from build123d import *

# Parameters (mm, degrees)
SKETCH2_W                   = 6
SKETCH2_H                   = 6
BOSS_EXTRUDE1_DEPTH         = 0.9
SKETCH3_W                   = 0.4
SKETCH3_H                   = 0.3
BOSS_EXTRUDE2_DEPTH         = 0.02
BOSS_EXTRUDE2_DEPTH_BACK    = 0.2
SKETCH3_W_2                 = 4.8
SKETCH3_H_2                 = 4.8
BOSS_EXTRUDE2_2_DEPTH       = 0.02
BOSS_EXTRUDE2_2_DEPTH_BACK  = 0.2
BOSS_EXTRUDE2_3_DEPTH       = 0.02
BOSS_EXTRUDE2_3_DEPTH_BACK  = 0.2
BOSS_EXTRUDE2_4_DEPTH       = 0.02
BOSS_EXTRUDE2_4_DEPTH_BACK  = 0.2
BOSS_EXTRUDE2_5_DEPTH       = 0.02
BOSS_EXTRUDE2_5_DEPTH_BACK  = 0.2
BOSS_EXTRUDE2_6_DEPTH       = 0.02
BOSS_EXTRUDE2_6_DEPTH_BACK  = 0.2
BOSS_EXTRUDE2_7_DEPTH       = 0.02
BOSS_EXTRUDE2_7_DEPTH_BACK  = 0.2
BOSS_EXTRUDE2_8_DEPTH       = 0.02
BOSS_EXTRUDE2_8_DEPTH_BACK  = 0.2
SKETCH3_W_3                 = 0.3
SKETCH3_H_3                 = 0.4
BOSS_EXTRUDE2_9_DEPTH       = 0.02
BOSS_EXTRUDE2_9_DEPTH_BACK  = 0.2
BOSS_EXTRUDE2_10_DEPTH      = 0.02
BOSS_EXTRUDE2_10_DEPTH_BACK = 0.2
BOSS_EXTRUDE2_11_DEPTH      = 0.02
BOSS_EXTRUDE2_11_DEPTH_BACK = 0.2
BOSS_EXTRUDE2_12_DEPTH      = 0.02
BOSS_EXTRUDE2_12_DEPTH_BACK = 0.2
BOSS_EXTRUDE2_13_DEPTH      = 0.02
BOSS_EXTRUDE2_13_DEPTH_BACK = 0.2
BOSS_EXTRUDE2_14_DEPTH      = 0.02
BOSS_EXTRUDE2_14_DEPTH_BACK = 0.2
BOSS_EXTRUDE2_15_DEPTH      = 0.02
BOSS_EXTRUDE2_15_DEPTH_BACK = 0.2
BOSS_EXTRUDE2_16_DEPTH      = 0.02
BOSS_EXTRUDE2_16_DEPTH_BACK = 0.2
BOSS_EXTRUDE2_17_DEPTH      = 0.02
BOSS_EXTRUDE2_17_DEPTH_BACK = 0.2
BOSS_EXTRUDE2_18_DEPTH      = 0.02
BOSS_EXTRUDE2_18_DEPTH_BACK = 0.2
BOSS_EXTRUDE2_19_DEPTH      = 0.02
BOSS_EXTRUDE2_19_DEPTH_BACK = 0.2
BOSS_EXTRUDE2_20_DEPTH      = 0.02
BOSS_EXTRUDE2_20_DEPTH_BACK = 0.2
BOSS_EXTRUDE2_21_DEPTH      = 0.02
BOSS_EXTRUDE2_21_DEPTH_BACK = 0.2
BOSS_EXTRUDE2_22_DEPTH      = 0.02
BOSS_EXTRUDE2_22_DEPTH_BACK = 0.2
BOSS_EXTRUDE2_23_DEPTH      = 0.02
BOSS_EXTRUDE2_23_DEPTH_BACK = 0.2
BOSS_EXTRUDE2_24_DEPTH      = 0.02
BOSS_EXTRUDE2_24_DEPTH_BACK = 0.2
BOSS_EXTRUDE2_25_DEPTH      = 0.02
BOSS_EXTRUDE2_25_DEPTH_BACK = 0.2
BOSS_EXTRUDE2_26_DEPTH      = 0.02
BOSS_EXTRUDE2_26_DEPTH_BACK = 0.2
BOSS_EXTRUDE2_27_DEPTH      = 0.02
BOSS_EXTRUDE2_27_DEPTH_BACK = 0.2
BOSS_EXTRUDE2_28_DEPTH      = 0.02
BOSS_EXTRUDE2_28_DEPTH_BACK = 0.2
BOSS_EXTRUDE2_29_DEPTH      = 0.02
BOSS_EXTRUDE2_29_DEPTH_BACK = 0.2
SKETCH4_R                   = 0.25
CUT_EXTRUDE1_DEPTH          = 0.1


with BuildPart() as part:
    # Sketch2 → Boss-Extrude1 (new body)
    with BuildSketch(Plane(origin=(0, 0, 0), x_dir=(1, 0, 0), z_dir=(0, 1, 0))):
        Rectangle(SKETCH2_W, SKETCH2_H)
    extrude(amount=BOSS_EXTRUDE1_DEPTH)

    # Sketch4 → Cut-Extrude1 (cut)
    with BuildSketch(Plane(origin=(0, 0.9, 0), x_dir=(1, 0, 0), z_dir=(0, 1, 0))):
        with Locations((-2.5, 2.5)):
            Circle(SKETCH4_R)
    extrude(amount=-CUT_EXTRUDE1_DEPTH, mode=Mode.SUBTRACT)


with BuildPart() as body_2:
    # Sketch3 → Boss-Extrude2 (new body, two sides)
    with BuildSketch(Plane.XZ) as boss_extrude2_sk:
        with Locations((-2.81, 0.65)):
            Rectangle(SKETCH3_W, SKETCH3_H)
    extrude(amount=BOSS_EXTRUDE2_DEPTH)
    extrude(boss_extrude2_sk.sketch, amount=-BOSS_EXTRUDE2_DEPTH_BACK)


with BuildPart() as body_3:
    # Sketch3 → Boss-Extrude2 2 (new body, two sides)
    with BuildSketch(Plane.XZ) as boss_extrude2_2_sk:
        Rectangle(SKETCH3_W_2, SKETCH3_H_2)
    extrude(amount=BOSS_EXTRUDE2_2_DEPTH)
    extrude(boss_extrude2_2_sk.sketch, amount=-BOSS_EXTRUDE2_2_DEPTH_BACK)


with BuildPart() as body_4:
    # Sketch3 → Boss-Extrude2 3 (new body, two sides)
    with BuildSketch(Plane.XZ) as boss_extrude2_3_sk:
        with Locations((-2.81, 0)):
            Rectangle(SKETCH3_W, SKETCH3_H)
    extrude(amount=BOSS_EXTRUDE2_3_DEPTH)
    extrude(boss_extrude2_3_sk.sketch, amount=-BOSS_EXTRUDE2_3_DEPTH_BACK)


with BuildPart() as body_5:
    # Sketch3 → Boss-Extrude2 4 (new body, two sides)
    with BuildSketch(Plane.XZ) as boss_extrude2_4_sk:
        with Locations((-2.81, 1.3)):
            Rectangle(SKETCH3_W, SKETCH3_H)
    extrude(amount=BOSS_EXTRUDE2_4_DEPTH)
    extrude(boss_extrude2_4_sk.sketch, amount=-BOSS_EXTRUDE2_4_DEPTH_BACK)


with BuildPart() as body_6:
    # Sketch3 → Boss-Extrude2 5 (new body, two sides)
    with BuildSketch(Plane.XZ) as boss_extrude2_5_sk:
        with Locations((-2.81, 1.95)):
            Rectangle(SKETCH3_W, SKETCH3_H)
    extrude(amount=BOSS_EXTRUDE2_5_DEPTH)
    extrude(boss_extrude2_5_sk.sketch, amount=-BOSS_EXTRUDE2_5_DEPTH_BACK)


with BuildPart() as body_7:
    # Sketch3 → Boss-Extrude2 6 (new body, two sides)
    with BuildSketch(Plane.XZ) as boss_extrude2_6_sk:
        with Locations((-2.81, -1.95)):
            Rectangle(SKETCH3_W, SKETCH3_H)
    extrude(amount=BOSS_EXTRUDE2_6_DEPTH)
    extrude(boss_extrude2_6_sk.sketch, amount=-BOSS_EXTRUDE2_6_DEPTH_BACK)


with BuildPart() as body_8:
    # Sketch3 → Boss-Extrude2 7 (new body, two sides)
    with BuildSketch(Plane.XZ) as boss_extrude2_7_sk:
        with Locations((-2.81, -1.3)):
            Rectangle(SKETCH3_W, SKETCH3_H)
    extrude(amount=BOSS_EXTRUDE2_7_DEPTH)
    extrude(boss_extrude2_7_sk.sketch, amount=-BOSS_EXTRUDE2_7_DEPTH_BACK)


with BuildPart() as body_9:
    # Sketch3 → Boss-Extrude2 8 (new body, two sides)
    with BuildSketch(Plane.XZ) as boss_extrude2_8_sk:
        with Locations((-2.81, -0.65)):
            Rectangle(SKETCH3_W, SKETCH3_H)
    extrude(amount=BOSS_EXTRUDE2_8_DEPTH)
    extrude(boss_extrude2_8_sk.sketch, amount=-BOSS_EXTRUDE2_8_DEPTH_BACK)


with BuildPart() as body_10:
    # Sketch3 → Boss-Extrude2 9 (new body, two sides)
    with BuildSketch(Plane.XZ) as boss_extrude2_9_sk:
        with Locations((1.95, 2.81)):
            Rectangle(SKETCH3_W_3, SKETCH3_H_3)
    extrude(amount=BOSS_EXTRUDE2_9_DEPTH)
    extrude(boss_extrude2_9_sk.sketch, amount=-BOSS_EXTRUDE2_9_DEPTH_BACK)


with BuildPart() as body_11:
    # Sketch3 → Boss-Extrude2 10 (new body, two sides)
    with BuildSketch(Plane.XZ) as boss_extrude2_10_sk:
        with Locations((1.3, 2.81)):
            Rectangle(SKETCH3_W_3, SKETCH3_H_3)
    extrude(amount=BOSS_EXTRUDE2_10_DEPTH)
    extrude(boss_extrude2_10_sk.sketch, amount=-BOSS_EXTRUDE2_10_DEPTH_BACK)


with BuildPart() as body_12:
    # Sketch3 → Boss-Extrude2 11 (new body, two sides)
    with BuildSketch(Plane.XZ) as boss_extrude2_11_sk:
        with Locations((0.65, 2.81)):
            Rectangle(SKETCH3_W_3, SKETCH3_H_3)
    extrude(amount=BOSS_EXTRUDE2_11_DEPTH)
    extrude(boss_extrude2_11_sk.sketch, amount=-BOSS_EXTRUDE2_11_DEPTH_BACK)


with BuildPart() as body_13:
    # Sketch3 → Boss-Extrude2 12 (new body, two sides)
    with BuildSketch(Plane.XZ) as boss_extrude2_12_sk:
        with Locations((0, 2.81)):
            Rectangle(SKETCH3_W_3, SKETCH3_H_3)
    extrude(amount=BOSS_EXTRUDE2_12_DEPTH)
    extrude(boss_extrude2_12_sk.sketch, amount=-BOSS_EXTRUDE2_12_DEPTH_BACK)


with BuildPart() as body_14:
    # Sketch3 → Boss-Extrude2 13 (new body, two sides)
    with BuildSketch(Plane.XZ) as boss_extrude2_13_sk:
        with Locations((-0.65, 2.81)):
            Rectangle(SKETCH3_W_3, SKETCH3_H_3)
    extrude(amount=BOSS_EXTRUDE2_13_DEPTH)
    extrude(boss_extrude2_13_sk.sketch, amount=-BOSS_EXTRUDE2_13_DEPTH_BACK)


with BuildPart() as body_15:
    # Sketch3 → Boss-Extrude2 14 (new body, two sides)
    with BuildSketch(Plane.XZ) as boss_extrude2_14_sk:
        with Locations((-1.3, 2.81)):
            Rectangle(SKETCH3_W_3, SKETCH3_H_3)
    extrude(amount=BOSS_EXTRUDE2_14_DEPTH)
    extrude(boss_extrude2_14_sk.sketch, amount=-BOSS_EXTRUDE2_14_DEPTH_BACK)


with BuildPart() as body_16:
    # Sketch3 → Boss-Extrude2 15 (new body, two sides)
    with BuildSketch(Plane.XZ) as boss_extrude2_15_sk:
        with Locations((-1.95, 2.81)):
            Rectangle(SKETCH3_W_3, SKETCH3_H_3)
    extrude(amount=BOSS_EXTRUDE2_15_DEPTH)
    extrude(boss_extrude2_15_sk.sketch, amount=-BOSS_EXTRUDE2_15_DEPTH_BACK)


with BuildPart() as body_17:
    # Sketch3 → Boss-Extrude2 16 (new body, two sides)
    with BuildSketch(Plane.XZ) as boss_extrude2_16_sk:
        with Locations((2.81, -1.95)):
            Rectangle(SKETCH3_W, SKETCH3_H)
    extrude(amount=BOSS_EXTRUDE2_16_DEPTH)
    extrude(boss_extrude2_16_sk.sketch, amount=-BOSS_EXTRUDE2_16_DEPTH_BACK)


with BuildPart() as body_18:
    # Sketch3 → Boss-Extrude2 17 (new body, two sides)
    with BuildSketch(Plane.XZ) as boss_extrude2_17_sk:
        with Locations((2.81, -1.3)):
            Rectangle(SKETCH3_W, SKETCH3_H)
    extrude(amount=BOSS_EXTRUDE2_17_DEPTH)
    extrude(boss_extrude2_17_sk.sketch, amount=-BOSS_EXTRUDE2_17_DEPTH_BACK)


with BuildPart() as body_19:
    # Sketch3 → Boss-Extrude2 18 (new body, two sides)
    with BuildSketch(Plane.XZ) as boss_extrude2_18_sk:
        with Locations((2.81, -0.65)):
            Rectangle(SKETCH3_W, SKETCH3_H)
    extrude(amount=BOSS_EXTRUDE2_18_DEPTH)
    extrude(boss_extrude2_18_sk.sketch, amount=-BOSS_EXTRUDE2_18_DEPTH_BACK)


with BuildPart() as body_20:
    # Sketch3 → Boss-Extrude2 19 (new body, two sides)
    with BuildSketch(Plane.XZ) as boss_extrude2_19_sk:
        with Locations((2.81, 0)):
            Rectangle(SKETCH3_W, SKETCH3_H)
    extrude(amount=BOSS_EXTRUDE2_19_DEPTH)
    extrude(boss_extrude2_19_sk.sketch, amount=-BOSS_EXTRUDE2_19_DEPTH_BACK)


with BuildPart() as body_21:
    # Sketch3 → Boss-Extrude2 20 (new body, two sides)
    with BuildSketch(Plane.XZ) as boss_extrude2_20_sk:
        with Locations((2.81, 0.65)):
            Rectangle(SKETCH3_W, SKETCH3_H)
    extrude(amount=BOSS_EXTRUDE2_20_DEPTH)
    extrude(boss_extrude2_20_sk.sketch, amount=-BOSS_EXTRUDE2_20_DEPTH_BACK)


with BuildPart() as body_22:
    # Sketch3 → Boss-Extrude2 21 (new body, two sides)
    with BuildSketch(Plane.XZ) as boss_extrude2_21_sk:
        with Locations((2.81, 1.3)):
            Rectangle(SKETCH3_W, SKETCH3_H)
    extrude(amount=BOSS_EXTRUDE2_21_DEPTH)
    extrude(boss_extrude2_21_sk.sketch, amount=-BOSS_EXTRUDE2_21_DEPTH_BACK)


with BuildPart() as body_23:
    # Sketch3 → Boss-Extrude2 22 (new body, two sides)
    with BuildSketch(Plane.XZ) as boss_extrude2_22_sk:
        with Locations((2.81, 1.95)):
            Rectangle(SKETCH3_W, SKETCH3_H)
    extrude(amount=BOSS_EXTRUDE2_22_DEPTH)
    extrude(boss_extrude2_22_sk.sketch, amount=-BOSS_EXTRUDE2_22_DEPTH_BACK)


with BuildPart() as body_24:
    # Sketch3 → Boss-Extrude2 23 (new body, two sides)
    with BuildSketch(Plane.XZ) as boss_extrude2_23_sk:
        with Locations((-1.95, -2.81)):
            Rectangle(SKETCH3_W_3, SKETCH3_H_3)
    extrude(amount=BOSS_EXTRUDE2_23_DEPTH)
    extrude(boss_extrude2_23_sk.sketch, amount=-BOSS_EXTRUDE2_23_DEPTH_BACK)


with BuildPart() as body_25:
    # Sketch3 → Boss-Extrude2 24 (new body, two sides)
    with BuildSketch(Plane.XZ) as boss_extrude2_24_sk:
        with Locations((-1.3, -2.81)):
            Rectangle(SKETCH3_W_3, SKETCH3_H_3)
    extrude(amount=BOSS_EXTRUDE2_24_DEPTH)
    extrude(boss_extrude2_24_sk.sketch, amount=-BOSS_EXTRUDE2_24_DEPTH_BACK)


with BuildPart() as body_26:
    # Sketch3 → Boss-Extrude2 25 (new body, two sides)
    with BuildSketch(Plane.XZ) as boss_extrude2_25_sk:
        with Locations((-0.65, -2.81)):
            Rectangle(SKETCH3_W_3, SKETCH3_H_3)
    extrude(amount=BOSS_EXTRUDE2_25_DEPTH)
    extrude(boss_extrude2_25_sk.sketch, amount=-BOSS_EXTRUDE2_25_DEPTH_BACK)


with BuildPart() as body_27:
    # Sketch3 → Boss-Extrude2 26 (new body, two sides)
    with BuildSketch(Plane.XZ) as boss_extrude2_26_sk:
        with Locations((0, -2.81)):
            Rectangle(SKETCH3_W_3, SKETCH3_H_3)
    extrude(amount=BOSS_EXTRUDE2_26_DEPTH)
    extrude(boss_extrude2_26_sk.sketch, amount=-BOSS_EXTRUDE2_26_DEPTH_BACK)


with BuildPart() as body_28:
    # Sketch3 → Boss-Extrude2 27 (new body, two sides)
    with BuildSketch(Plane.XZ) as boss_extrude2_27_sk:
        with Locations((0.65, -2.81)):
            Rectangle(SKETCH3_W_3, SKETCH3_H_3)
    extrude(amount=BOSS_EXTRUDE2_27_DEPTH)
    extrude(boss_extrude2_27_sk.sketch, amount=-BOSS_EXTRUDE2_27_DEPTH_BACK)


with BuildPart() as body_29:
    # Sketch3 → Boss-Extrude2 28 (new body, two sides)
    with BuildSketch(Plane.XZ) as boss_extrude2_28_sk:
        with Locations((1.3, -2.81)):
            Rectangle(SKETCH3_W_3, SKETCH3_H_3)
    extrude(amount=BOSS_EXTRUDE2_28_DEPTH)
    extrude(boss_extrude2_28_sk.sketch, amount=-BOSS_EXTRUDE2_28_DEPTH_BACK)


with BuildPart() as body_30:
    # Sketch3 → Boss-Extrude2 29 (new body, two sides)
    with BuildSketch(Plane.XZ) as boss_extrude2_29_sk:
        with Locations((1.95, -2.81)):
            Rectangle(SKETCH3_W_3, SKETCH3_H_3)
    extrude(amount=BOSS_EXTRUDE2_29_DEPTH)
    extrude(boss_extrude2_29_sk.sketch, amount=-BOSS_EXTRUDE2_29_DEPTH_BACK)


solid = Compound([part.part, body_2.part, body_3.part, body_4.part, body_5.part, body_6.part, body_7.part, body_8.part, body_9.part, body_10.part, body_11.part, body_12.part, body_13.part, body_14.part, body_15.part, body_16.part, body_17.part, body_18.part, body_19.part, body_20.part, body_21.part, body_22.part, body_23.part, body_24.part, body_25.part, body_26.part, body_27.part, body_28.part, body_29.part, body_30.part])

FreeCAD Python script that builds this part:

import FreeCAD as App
import Part
import Sketcher

V = App.Vector
Q = App.Units.Quantity


def add_polygon(sketch, points):
    """Adds a closed chain of lines whose ends are joined by coincident constraints."""
    first, n = sketch.GeometryCount, len(points)
    for a, b in zip(points, points[1:] + points[:1]):
        sketch.addGeometry(Part.LineSegment(App.Vector(*a, 0), App.Vector(*b, 0)), False)
    for i in range(n):
        sketch.addConstraint(Sketcher.Constraint("Coincident", first + i, 2, first + (i + 1) % n, 1))

doc = App.newDocument("Part")
body = doc.addObject("PartDesign::Body", "Body")

# Sketch on XZ plane
sketch1 = body.newObject("Sketcher::SketchObject", "Sketch")
sketch1.AttachmentSupport = (doc.getObject("XZ_Plane"), [""])
sketch1.MapMode = "FlatFace"
add_polygon(sketch1, [(-3, -3), (-3, 3), (3, 3), (3, -3)])  # lines 0-3
sketch1.addConstraint(Sketcher.Constraint("Vertical", 0))
sketch1.addConstraint(Sketcher.Constraint("Horizontal", 1))
sketch1.addConstraint(Sketcher.Constraint("Vertical", 2))
sketch1.addConstraint(Sketcher.Constraint("Horizontal", 3))
sketch1.addConstraint(Sketcher.Constraint("Symmetric", 0, 2, 2, 2, -1, 1))
sketch1.addConstraint(Sketcher.Constraint("Equal", 3, 0))
sketch1.addConstraint(Sketcher.Constraint("DistanceX", 1, 1, 1, 2, Q("6 mm")))
pad1 = body.newObject("PartDesign::Pad", "Pad")
pad1.Profile = sketch1
pad1.Length = 0.9
pad1.Reversed = True

# Sketch on XZ plane
sketch2 = body.newObject("Sketcher::SketchObject", "Sketch001")
sketch2.AttachmentSupport = (doc.getObject("XZ_Plane"), [""])
sketch2.MapMode = "FlatFace"
sketch2.AttachmentOffset = App.Placement(V(0, 0, -0.9), App.Rotation())
sketch2.addGeometry(Part.Circle(V(-2.5, -2.5, 0), V(0, 0, 1), 0.25), False)
sketch2.addConstraint(Sketcher.Constraint("Diameter", 0, Q("0.5 mm")))
sketch2.addConstraint(Sketcher.Constraint("DistanceX", 0, 3, -1, 1, Q("2.5 mm")))
sketch2.addConstraint(Sketcher.Constraint("DistanceY", 0, 3, -1, 1, Q("2.5 mm")))
pocket1 = body.newObject("PartDesign::Pocket", "Pocket")
pocket1.Profile = sketch2
pocket1.Length = 0.1
pocket1.Reversed = True
body2 = doc.addObject("PartDesign::Body", "Body001")

# Sketch on XZ plane
sketch3 = body2.newObject("Sketcher::SketchObject", "Sketch002")
sketch3.AttachmentSupport = (doc.getObject("XZ_Plane001"), [""])
sketch3.MapMode = "FlatFace"
add_polygon(sketch3, [(-3.01, 0.8), (-3.01, 0.5), (-2.61, 0.5), (-2.61, 0.8)])  # lines 0-3
sketch3.addConstraint(Sketcher.Constraint("Vertical", 0))
sketch3.addConstraint(Sketcher.Constraint("Horizontal", 1))
sketch3.addConstraint(Sketcher.Constraint("Vertical", 2))
sketch3.addConstraint(Sketcher.Constraint("Horizontal", 3))
sketch3.addConstraint(Sketcher.Constraint("DistanceX", 1, 1, 1, 2, Q("0.4 mm")))
sketch3.addConstraint(Sketcher.Constraint("DistanceY", 0, 2, 0, 1, Q("0.3 mm")))
sketch3.addConstraint(Sketcher.Constraint("DistanceY", -1, 1, 0, 2, Q("0.5 mm")))
sketch3.addConstraint(Sketcher.Constraint("DistanceX", 0, 2, -1, 1, Q("3.01 mm")))
pad2 = body2.newObject("PartDesign::Pad", "Pad001")
pad2.Profile = sketch3
pad2.Type = "TwoLengths"
pad2.Length = 0.02
pad2.Length2 = 0.2
body3 = doc.addObject("PartDesign::Body", "Body002")

# Sketch on XZ plane
sketch4 = body3.newObject("Sketcher::SketchObject", "Sketch003")
sketch4.AttachmentSupport = (doc.getObject("XZ_Plane002"), [""])
sketch4.MapMode = "FlatFace"
add_polygon(sketch4, [(-2.4, 2.4), (-2.4, -2.4), (2.4, -2.4), (2.4, 2.4)])  # lines 0-3
sketch4.addConstraint(Sketcher.Constraint("Vertical", 0))
sketch4.addConstraint(Sketcher.Constraint("Horizontal", 1))
sketch4.addConstraint(Sketcher.Constraint("Vertical", 2))
sketch4.addConstraint(Sketcher.Constraint("Horizontal", 3))
sketch4.addConstraint(Sketcher.Constraint("Symmetric", 0, 2, 2, 2, -1, 1))
sketch4.addConstraint(Sketcher.Constraint("Equal", 3, 0))
sketch4.addConstraint(Sketcher.Constraint("DistanceX", 1, 1, 1, 2, Q("4.8 mm")))
pad3 = body3.newObject("PartDesign::Pad", "Pad002")
pad3.Profile = sketch4
pad3.Type = "TwoLengths"
pad3.Length = 0.02
pad3.Length2 = 0.2
body4 = doc.addObject("PartDesign::Body", "Body003")

# Sketch on XZ plane
sketch5 = body4.newObject("Sketcher::SketchObject", "Sketch004")
sketch5.AttachmentSupport = (doc.getObject("XZ_Plane003"), [""])
sketch5.MapMode = "FlatFace"
add_polygon(sketch5, [(-3.01, 0.15), (-3.01, -0.15), (-2.61, -0.15), (-2.61, 0.15)])  # lines 0-3
sketch5.addConstraint(Sketcher.Constraint("Vertical", 0))
sketch5.addConstraint(Sketcher.Constraint("Horizontal", 1))
sketch5.addConstraint(Sketcher.Constraint("Vertical", 2))
sketch5.addConstraint(Sketcher.Constraint("Horizontal", 3))
sketch5.addConstraint(Sketcher.Constraint("DistanceX", 1, 1, 1, 2, Q("0.4 mm")))
sketch5.addConstraint(Sketcher.Constraint("DistanceY", 0, 2, 0, 1, Q("0.3 mm")))
sketch5.addConstraint(Sketcher.Constraint("DistanceX", 0, 2, -1, 1, Q("3.01 mm")))
sketch5.addConstraint(Sketcher.Constraint("DistanceY", 0, 2, -1, 1, Q("0.15 mm")))
pad4 = body4.newObject("PartDesign::Pad", "Pad003")
pad4.Profile = sketch5
pad4.Type = "TwoLengths"
pad4.Length = 0.02
pad4.Length2 = 0.2
body5 = doc.addObject("PartDesign::Body", "Body004")

# Sketch on XZ plane
sketch6 = body5.newObject("Sketcher::SketchObject", "Sketch005")
sketch6.AttachmentSupport = (doc.getObject("XZ_Plane004"), [""])
sketch6.MapMode = "FlatFace"
add_polygon(sketch6, [(-3.01, 1.45), (-3.01, 1.15), (-2.61, 1.15), (-2.61, 1.45)])  # lines 0-3
sketch6.addConstraint(Sketcher.Constraint("Vertical", 0))
sketch6.addConstraint(Sketcher.Constraint("Horizontal", 1))
sketch6.addConstraint(Sketcher.Constraint("Vertical", 2))
sketch6.addConstraint(Sketcher.Constraint("Horizontal", 3))
sketch6.addConstraint(Sketcher.Constraint("DistanceX", 1, 1, 1, 2, Q("0.4 mm")))
sketch6.addConstraint(Sketcher.Constraint("DistanceY", 0, 2, 0, 1, Q("0.3 mm")))
sketch6.addConstraint(Sketcher.Constraint("DistanceX", 0, 2, -1, 1, Q("3.01 mm")))
sketch6.addConstraint(Sketcher.Constraint("DistanceY", -1, 1, 0, 2, Q("1.15 mm")))
pad5 = body5.newObject("PartDesign::Pad", "Pad004")
pad5.Profile = sketch6
pad5.Type = "TwoLengths"
pad5.Length = 0.02
pad5.Length2 = 0.2
body6 = doc.addObject("PartDesign::Body", "Body005")

# Sketch on XZ plane
sketch7 = body6.newObject("Sketcher::SketchObject", "Sketch006")
sketch7.AttachmentSupport = (doc.getObject("XZ_Plane005"), [""])
sketch7.MapMode = "FlatFace"
add_polygon(sketch7, [(-3.01, 2.1), (-3.01, 1.8), (-2.61, 1.8), (-2.61, 2.1)])  # lines 0-3
sketch7.addConstraint(Sketcher.Constraint("Vertical", 0))
sketch7.addConstraint(Sketcher.Constraint("Horizontal", 1))
sketch7.addConstraint(Sketcher.Constraint("Vertical", 2))
sketch7.addConstraint(Sketcher.Constraint("Horizontal", 3))
sketch7.addConstraint(Sketcher.Constraint("DistanceX", 1, 1, 1, 2, Q("0.4 mm")))
sketch7.addConstraint(Sketcher.Constraint("DistanceY", 0, 2, 0, 1, Q("0.3 mm")))
sketch7.addConstraint(Sketcher.Constraint("DistanceY", -1, 1, 0, 2, Q("1.8 mm")))
sketch7.addConstraint(Sketcher.Constraint("DistanceX", 0, 2, -1, 1, Q("3.01 mm")))
pad6 = body6.newObject("PartDesign::Pad", "Pad005")
pad6.Profile = sketch7
pad6.Type = "TwoLengths"
pad6.Length = 0.02
pad6.Length2 = 0.2
body7 = doc.addObject("PartDesign::Body", "Body006")

# Sketch on XZ plane
sketch8 = body7.newObject("Sketcher::SketchObject", "Sketch007")
sketch8.AttachmentSupport = (doc.getObject("XZ_Plane006"), [""])
sketch8.MapMode = "FlatFace"
add_polygon(sketch8, [(-3.01, -1.8), (-3.01, -2.1), (-2.61, -2.1), (-2.61, -1.8)])  # lines 0-3
sketch8.addConstraint(Sketcher.Constraint("Vertical", 0))
sketch8.addConstraint(Sketcher.Constraint("Horizontal", 1))
sketch8.addConstraint(Sketcher.Constraint("Vertical", 2))
sketch8.addConstraint(Sketcher.Constraint("Horizontal", 3))
sketch8.addConstraint(Sketcher.Constraint("DistanceX", 1, 1, 1, 2, Q("0.4 mm")))
sketch8.addConstraint(Sketcher.Constraint("DistanceY", 0, 2, 0, 1, Q("0.3 mm")))
sketch8.addConstraint(Sketcher.Constraint("DistanceY", 0, 2, -1, 1, Q("2.1 mm")))
sketch8.addConstraint(Sketcher.Constraint("DistanceX", 0, 2, -1, 1, Q("3.01 mm")))
pad7 = body7.newObject("PartDesign::Pad", "Pad006")
pad7.Profile = sketch8
pad7.Type = "TwoLengths"
pad7.Length = 0.02
pad7.Length2 = 0.2
body8 = doc.addObject("PartDesign::Body", "Body007")

# Sketch on XZ plane
sketch9 = body8.newObject("Sketcher::SketchObject", "Sketch008")
sketch9.AttachmentSupport = (doc.getObject("XZ_Plane007"), [""])
sketch9.MapMode = "FlatFace"
add_polygon(sketch9, [(-3.01, -1.15), (-3.01, -1.45), (-2.61, -1.45), (-2.61, -1.15)])  # lines 0-3
sketch9.addConstraint(Sketcher.Constraint("Vertical", 0))
sketch9.addConstraint(Sketcher.Constraint("Horizontal", 1))
sketch9.addConstraint(Sketcher.Constraint("Vertical", 2))
sketch9.addConstraint(Sketcher.Constraint("Horizontal", 3))
sketch9.addConstraint(Sketcher.Constraint("DistanceX", 1, 1, 1, 2, Q("0.4 mm")))
sketch9.addConstraint(Sketcher.Constraint("DistanceY", 0, 2, 0, 1, Q("0.3 mm")))
sketch9.addConstraint(Sketcher.Constraint("DistanceX", 0, 2, -1, 1, Q("3.01 mm")))
sketch9.addConstraint(Sketcher.Constraint("DistanceY", 0, 2, -1, 1, Q("1.45 mm")))
pad8 = body8.newObject("PartDesign::Pad", "Pad007")
pad8.Profile = sketch9
pad8.Type = "TwoLengths"
pad8.Length = 0.02
pad8.Length2 = 0.2
body9 = doc.addObject("PartDesign::Body", "Body008")

# Sketch on XZ plane
sketch10 = body9.newObject("Sketcher::SketchObject", "Sketch009")
sketch10.AttachmentSupport = (doc.getObject("XZ_Plane008"), [""])
sketch10.MapMode = "FlatFace"
add_polygon(sketch10, [(-3.01, -0.5), (-3.01, -0.8), (-2.61, -0.8), (-2.61, -0.5)])  # lines 0-3
sketch10.addConstraint(Sketcher.Constraint("Vertical", 0))
sketch10.addConstraint(Sketcher.Constraint("Horizontal", 1))
sketch10.addConstraint(Sketcher.Constraint("Vertical", 2))
sketch10.addConstraint(Sketcher.Constraint("Horizontal", 3))
sketch10.addConstraint(Sketcher.Constraint("DistanceX", 1, 1, 1, 2, Q("0.4 mm")))
sketch10.addConstraint(Sketcher.Constraint("DistanceY", 0, 2, 0, 1, Q("0.3 mm")))
sketch10.addConstraint(Sketcher.Constraint("DistanceY", 0, 2, -1, 1, Q("0.8 mm")))
sketch10.addConstraint(Sketcher.Constraint("DistanceX", 0, 2, -1, 1, Q("3.01 mm")))
pad9 = body9.newObject("PartDesign::Pad", "Pad008")
pad9.Profile = sketch10
pad9.Type = "TwoLengths"
pad9.Length = 0.02
pad9.Length2 = 0.2
body10 = doc.addObject("PartDesign::Body", "Body009")

# Sketch on XZ plane
sketch11 = body10.newObject("Sketcher::SketchObject", "Sketch010")
sketch11.AttachmentSupport = (doc.getObject("XZ_Plane009"), [""])
sketch11.MapMode = "FlatFace"
add_polygon(sketch11, [(1.8, 3.01), (1.8, 2.61), (2.1, 2.61), (2.1, 3.01)])  # lines 0-3
sketch11.addConstraint(Sketcher.Constraint("Vertical", 0))
sketch11.addConstraint(Sketcher.Constraint("Horizontal", 1))
sketch11.addConstraint(Sketcher.Constraint("Vertical", 2))
sketch11.addConstraint(Sketcher.Constraint("Horizontal", 3))
sketch11.addConstraint(Sketcher.Constraint("DistanceX", 1, 1, 1, 2, Q("0.3 mm")))
sketch11.addConstraint(Sketcher.Constraint("DistanceY", 0, 2, 0, 1, Q("0.4 mm")))
sketch11.addConstraint(Sketcher.Constraint("DistanceX", -1, 1, 0, 2, Q("1.8 mm")))
sketch11.addConstraint(Sketcher.Constraint("DistanceY", -1, 1, 0, 2, Q("2.61 mm")))
pad10 = body10.newObject("PartDesign::Pad", "Pad009")
pad10.Profile = sketch11
pad10.Type = "TwoLengths"
pad10.Length = 0.02
pad10.Length2 = 0.2
body11 = doc.addObject("PartDesign::Body", "Body010")

# Sketch on XZ plane
sketch12 = body11.newObject("Sketcher::SketchObject", "Sketch011")
sketch12.AttachmentSupport = (doc.getObject("XZ_Plane010"), [""])
sketch12.MapMode = "FlatFace"
add_polygon(sketch12, [(1.15, 3.01), (1.15, 2.61), (1.45, 2.61), (1.45, 3.01)])  # lines 0-3
sketch12.addConstraint(Sketcher.Constraint("Vertical", 0))
sketch12.addConstraint(Sketcher.Constraint("Horizontal", 1))
sketch12.addConstraint(Sketcher.Constraint("Vertical", 2))
sketch12.addConstraint(Sketcher.Constraint("Horizontal", 3))
sketch12.addConstraint(Sketcher.Constraint("DistanceX", 1, 1, 1, 2, Q("0.3 mm")))
sketch12.addConstraint(Sketcher.Constraint("DistanceY", 0, 2, 0, 1, Q("0.4 mm")))
sketch12.addConstraint(Sketcher.Constraint("DistanceX", -1, 1, 0, 2, Q("1.15 mm")))
sketch12.addConstraint(Sketcher.Constraint("DistanceY", -1, 1, 0, 2, Q("2.61 mm")))
pad11 = body11.newObject("PartDesign::Pad", "Pad010")
pad11.Profile = sketch12
pad11.Type = "TwoLengths"
pad11.Length = 0.02
pad11.Length2 = 0.2
body12 = doc.addObject("PartDesign::Body", "Body011")

# Sketch on XZ plane
sketch13 = body12.newObject("Sketcher::SketchObject", "Sketch012")
sketch13.AttachmentSupport = (doc.getObject("XZ_Plane011"), [""])
sketch13.MapMode = "FlatFace"
add_polygon(sketch13, [(0.5, 3.01), (0.5, 2.61), (0.8, 2.61), (0.8, 3.01)])  # lines 0-3
sketch13.addConstraint(Sketcher.Constraint("Vertical", 0))
sketch13.addConstraint(Sketcher.Constraint("Horizontal", 1))
sketch13.addConstraint(Sketcher.Constraint("Vertical", 2))
sketch13.addConstraint(Sketcher.Constraint("Horizontal", 3))
sketch13.addConstraint(Sketcher.Constraint("DistanceX", 1, 1, 1, 2, Q("0.3 mm")))
sketch13.addConstraint(Sketcher.Constraint("DistanceY", 0, 2, 0, 1, Q("0.4 mm")))
sketch13.addConstraint(Sketcher.Constraint("DistanceX", -1, 1, 0, 2, Q("0.5 mm")))
sketch13.addConstraint(Sketcher.Constraint("DistanceY", -1, 1, 0, 2, Q("2.61 mm")))
pad12 = body12.newObject("PartDesign::Pad", "Pad011")
pad12.Profile = sketch13
pad12.Type = "TwoLengths"
pad12.Length = 0.02
pad12.Length2 = 0.2
body13 = doc.addObject("PartDesign::Body", "Body012")

# Sketch on XZ plane
sketch14 = body13.newObject("Sketcher::SketchObject", "Sketch013")
sketch14.AttachmentSupport = (doc.getObject("XZ_Plane012"), [""])
sketch14.MapMode = "FlatFace"
add_polygon(sketch14, [(-0.15, 3.01), (-0.15, 2.61), (0.15, 2.61), (0.15, 3.01)])  # lines 0-3
sketch14.addConstraint(Sketcher.Constraint("Vertical", 0))
sketch14.addConstraint(Sketcher.Constraint("Horizontal", 1))
sketch14.addConstraint(Sketcher.Constraint("Vertical", 2))
sketch14.addConstraint(Sketcher.Constraint("Horizontal", 3))
sketch14.addConstraint(Sketcher.Constraint("DistanceX", 1, 1, 1, 2, Q("0.3 mm")))
sketch14.addConstraint(Sketcher.Constraint("DistanceY", 0, 2, 0, 1, Q("0.4 mm")))
sketch14.addConstraint(Sketcher.Constraint("DistanceX", 0, 2, -1, 1, Q("0.15 mm")))
sketch14.addConstraint(Sketcher.Constraint("DistanceY", -1, 1, 0, 2, Q("2.61 mm")))
pad13 = body13.newObject("PartDesign::Pad", "Pad012")
pad13.Profile = sketch14
pad13.Type = "TwoLengths"
pad13.Length = 0.02
pad13.Length2 = 0.2
body14 = doc.addObject("PartDesign::Body", "Body013")

# Sketch on XZ plane
sketch15 = body14.newObject("Sketcher::SketchObject", "Sketch014")
sketch15.AttachmentSupport = (doc.getObject("XZ_Plane013"), [""])
sketch15.MapMode = "FlatFace"
add_polygon(sketch15, [(-0.8, 3.01), (-0.8, 2.61), (-0.5, 2.61), (-0.5, 3.01)])  # lines 0-3
sketch15.addConstraint(Sketcher.Constraint("Vertical", 0))
sketch15.addConstraint(Sketcher.Constraint("Horizontal", 1))
sketch15.addConstraint(Sketcher.Constraint("Vertical", 2))
sketch15.addConstraint(Sketcher.Constraint("Horizontal", 3))
sketch15.addConstraint(Sketcher.Constraint("DistanceX", 1, 1, 1, 2, Q("0.3 mm")))
sketch15.addConstraint(Sketcher.Constraint("DistanceY", 0, 2, 0, 1, Q("0.4 mm")))
sketch15.addConstraint(Sketcher.Constraint("DistanceX", 0, 2, -1, 1, Q("0.8 mm")))
sketch15.addConstraint(Sketcher.Constraint("DistanceY", -1, 1, 0, 2, Q("2.61 mm")))
pad14 = body14.newObject("PartDesign::Pad", "Pad013")
pad14.Profile = sketch15
pad14.Type = "TwoLengths"
pad14.Length = 0.02
pad14.Length2 = 0.2
body15 = doc.addObject("PartDesign::Body", "Body014")

# Sketch on XZ plane
sketch16 = body15.newObject("Sketcher::SketchObject", "Sketch015")
sketch16.AttachmentSupport = (doc.getObject("XZ_Plane014"), [""])
sketch16.MapMode = "FlatFace"
add_polygon(sketch16, [(-1.45, 3.01), (-1.45, 2.61), (-1.15, 2.61), (-1.15, 3.01)])  # lines 0-3
sketch16.addConstraint(Sketcher.Constraint("Vertical", 0))
sketch16.addConstraint(Sketcher.Constraint("Horizontal", 1))
sketch16.addConstraint(Sketcher.Constraint("Vertical", 2))
sketch16.addConstraint(Sketcher.Constraint("Horizontal", 3))
sketch16.addConstraint(Sketcher.Constraint("DistanceX", 1, 1, 1, 2, Q("0.3 mm")))
sketch16.addConstraint(Sketcher.Constraint("DistanceY", 0, 2, 0, 1, Q("0.4 mm")))
sketch16.addConstraint(Sketcher.Constraint("DistanceX", 0, 2, -1, 1, Q("1.45 mm")))
sketch16.addConstraint(Sketcher.Constraint("DistanceY", -1, 1, 0, 2, Q("2.61 mm")))
pad15 = body15.newObject("PartDesign::Pad", "Pad014")
pad15.Profile = sketch16
pad15.Type = "TwoLengths"
pad15.Length = 0.02
pad15.Length2 = 0.2
body16 = doc.addObject("PartDesign::Body", "Body015")

# Sketch on XZ plane
sketch17 = body16.newObject("Sketcher::SketchObject", "Sketch016")
sketch17.AttachmentSupport = (doc.getObject("XZ_Plane015"), [""])
sketch17.MapMode = "FlatFace"
add_polygon(sketch17, [(-2.1, 3.01), (-2.1, 2.61), (-1.8, 2.61), (-1.8, 3.01)])  # lines 0-3
sketch17.addConstraint(Sketcher.Constraint("Vertical", 0))
sketch17.addConstraint(Sketcher.Constraint("Horizontal", 1))
sketch17.addConstraint(Sketcher.Constraint("Vertical", 2))
sketch17.addConstraint(Sketcher.Constraint("Horizontal", 3))
sketch17.addConstraint(Sketcher.Constraint("DistanceX", 1, 1, 1, 2, Q("0.3 mm")))
sketch17.addConstraint(Sketcher.Constraint("DistanceY", 0, 2, 0, 1, Q("0.4 mm")))
sketch17.addConstraint(Sketcher.Constraint("DistanceX", 0, 2, -1, 1, Q("2.1 mm")))
sketch17.addConstraint(Sketcher.Constraint("DistanceY", -1, 1, 0, 2, Q("2.61 mm")))
pad16 = body16.newObject("PartDesign::Pad", "Pad015")
pad16.Profile = sketch17
pad16.Type = "TwoLengths"
pad16.Length = 0.02
pad16.Length2 = 0.2
body17 = doc.addObject("PartDesign::Body", "Body016")

# Sketch on XZ plane
sketch18 = body17.newObject("Sketcher::SketchObject", "Sketch017")
sketch18.AttachmentSupport = (doc.getObject("XZ_Plane016"), [""])
sketch18.MapMode = "FlatFace"
add_polygon(sketch18, [(2.61, -1.8), (2.61, -2.1), (3.01, -2.1), (3.01, -1.8)])  # lines 0-3
sketch18.addConstraint(Sketcher.Constraint("Vertical", 0))
sketch18.addConstraint(Sketcher.Constraint("Horizontal", 1))
sketch18.addConstraint(Sketcher.Constraint("Vertical", 2))
sketch18.addConstraint(Sketcher.Constraint("Horizontal", 3))
sketch18.addConstraint(Sketcher.Constraint("DistanceX", 1, 1, 1, 2, Q("0.4 mm")))
sketch18.addConstraint(Sketcher.Constraint("DistanceY", 0, 2, 0, 1, Q("0.3 mm")))
sketch18.addConstraint(Sketcher.Constraint("DistanceY", 0, 2, -1, 1, Q("2.1 mm")))
sketch18.addConstraint(Sketcher.Constraint("DistanceX", -1, 1, 0, 2, Q("2.61 mm")))
pad17 = body17.newObject("PartDesign::Pad", "Pad016")
pad17.Profile = sketch18
pad17.Type = "TwoLengths"
pad17.Length = 0.02
pad17.Length2 = 0.2
body18 = doc.addObject("PartDesign::Body", "Body017")

# Sketch on XZ plane
sketch19 = body18.newObject("Sketcher::SketchObject", "Sketch018")
sketch19.AttachmentSupport = (doc.getObject("XZ_Plane017"), [""])
sketch19.MapMode = "FlatFace"
add_polygon(sketch19, [(2.61, -1.15), (2.61, -1.45), (3.01, -1.45), (3.01, -1.15)])  # lines 0-3
sketch19.addConstraint(Sketcher.Constraint("Vertical", 0))
sketch19.addConstraint(Sketcher.Constraint("Horizontal", 1))
sketch19.addConstraint(Sketcher.Constraint("Vertical", 2))
sketch19.addConstraint(Sketcher.Constraint("Horizontal", 3))
sketch19.addConstraint(Sketcher.Constraint("DistanceX", 1, 1, 1, 2, Q("0.4 mm")))
sketch19.addConstraint(Sketcher.Constraint("DistanceY", 0, 2, 0, 1, Q("0.3 mm")))
sketch19.addConstraint(Sketcher.Constraint("DistanceX", -1, 1, 0, 2, Q("2.61 mm")))
sketch19.addConstraint(Sketcher.Constraint("DistanceY", 0, 2, -1, 1, Q("1.45 mm")))
pad18 = body18.newObject("PartDesign::Pad", "Pad017")
pad18.Profile = sketch19
pad18.Type = "TwoLengths"
pad18.Length = 0.02
pad18.Length2 = 0.2
body19 = doc.addObject("PartDesign::Body", "Body018")

# Sketch on XZ plane
sketch20 = body19.newObject("Sketcher::SketchObject", "Sketch019")
sketch20.AttachmentSupport = (doc.getObject("XZ_Plane018"), [""])
sketch20.MapMode = "FlatFace"
add_polygon(sketch20, [(2.61, -0.5), (2.61, -0.8), (3.01, -0.8), (3.01, -0.5)])  # lines 0-3
sketch20.addConstraint(Sketcher.Constraint("Vertical", 0))
sketch20.addConstraint(Sketcher.Constraint("Horizontal", 1))
sketch20.addConstraint(Sketcher.Constraint("Vertical", 2))
sketch20.addConstraint(Sketcher.Constraint("Horizontal", 3))
sketch20.addConstraint(Sketcher.Constraint("DistanceX", 1, 1, 1, 2, Q("0.4 mm")))
sketch20.addConstraint(Sketcher.Constraint("DistanceY", 0, 2, 0, 1, Q("0.3 mm")))
sketch20.addConstraint(Sketcher.Constraint("DistanceY", 0, 2, -1, 1, Q("0.8 mm")))
sketch20.addConstraint(Sketcher.Constraint("DistanceX", -1, 1, 0, 2, Q("2.61 mm")))
pad19 = body19.newObject("PartDesign::Pad", "Pad018")
pad19.Profile = sketch20
pad19.Type = "TwoLengths"
pad19.Length = 0.02
pad19.Length2 = 0.2
body20 = doc.addObject("PartDesign::Body", "Body019")

# Sketch on XZ plane
sketch21 = body20.newObject("Sketcher::SketchObject", "Sketch020")
sketch21.AttachmentSupport = (doc.getObject("XZ_Plane019"), [""])
sketch21.MapMode = "FlatFace"
add_polygon(sketch21, [(2.61, 0.15), (2.61, -0.15), (3.01, -0.15), (3.01, 0.15)])  # lines 0-3
sketch21.addConstraint(Sketcher.Constraint("Vertical", 0))
sketch21.addConstraint(Sketcher.Constraint("Horizontal", 1))
sketch21.addConstraint(Sketcher.Constraint("Vertical", 2))
sketch21.addConstraint(Sketcher.Constraint("Horizontal", 3))
sketch21.addConstraint(Sketcher.Constraint("DistanceX", 1, 1, 1, 2, Q("0.4 mm")))
sketch21.addConstraint(Sketcher.Constraint("DistanceY", 0, 2, 0, 1, Q("0.3 mm")))
sketch21.addConstraint(Sketcher.Constraint("DistanceX", -1, 1, 0, 2, Q("2.61 mm")))
sketch21.addConstraint(Sketcher.Constraint("DistanceY", 0, 2, -1, 1, Q("0.15 mm")))
pad20 = body20.newObject("PartDesign::Pad", "Pad019")
pad20.Profile = sketch21
pad20.Type = "TwoLengths"
pad20.Length = 0.02
pad20.Length2 = 0.2
body21 = doc.addObject("PartDesign::Body", "Body020")

# Sketch on XZ plane
sketch22 = body21.newObject("Sketcher::SketchObject", "Sketch021")
sketch22.AttachmentSupport = (doc.getObject("XZ_Plane020"), [""])
sketch22.MapMode = "FlatFace"
add_polygon(sketch22, [(2.61, 0.8), (2.61, 0.5), (3.01, 0.5), (3.01, 0.8)])  # lines 0-3
sketch22.addConstraint(Sketcher.Constraint("Vertical", 0))
sketch22.addConstraint(Sketcher.Constraint("Horizontal", 1))
sketch22.addConstraint(Sketcher.Constraint("Vertical", 2))
sketch22.addConstraint(Sketcher.Constraint("Horizontal", 3))
sketch22.addConstraint(Sketcher.Constraint("DistanceX", 1, 1, 1, 2, Q("0.4 mm")))
sketch22.addConstraint(Sketcher.Constraint("DistanceY", 0, 2, 0, 1, Q("0.3 mm")))
sketch22.addConstraint(Sketcher.Constraint("DistanceY", -1, 1, 0, 2, Q("0.5 mm")))
sketch22.addConstraint(Sketcher.Constraint("DistanceX", -1, 1, 0, 2, Q("2.61 mm")))
pad21 = body21.newObject("PartDesign::Pad", "Pad020")
pad21.Profile = sketch22
pad21.Type = "TwoLengths"
pad21.Length = 0.02
pad21.Length2 = 0.2
body22 = doc.addObject("PartDesign::Body", "Body021")

# Sketch on XZ plane
sketch23 = body22.newObject("Sketcher::SketchObject", "Sketch022")
sketch23.AttachmentSupport = (doc.getObject("XZ_Plane021"), [""])
sketch23.MapMode = "FlatFace"
add_polygon(sketch23, [(2.61, 1.45), (2.61, 1.15), (3.01, 1.15), (3.01, 1.45)])  # lines 0-3
sketch23.addConstraint(Sketcher.Constraint("Vertical", 0))
sketch23.addConstraint(Sketcher.Constraint("Horizontal", 1))
sketch23.addConstraint(Sketcher.Constraint("Vertical", 2))
sketch23.addConstraint(Sketcher.Constraint("Horizontal", 3))
sketch23.addConstraint(Sketcher.Constraint("DistanceX", 1, 1, 1, 2, Q("0.4 mm")))
sketch23.addConstraint(Sketcher.Constraint("DistanceY", 0, 2, 0, 1, Q("0.3 mm")))
sketch23.addConstraint(Sketcher.Constraint("DistanceX", -1, 1, 0, 2, Q("2.61 mm")))
sketch23.addConstraint(Sketcher.Constraint("DistanceY", -1, 1, 0, 2, Q("1.15 mm")))
pad22 = body22.newObject("PartDesign::Pad", "Pad021")
pad22.Profile = sketch23
pad22.Type = "TwoLengths"
pad22.Length = 0.02
pad22.Length2 = 0.2
body23 = doc.addObject("PartDesign::Body", "Body022")

# Sketch on XZ plane
sketch24 = body23.newObject("Sketcher::SketchObject", "Sketch023")
sketch24.AttachmentSupport = (doc.getObject("XZ_Plane022"), [""])
sketch24.MapMode = "FlatFace"
add_polygon(sketch24, [(2.61, 2.1), (2.61, 1.8), (3.01, 1.8), (3.01, 2.1)])  # lines 0-3
sketch24.addConstraint(Sketcher.Constraint("Vertical", 0))
sketch24.addConstraint(Sketcher.Constraint("Horizontal", 1))
sketch24.addConstraint(Sketcher.Constraint("Vertical", 2))
sketch24.addConstraint(Sketcher.Constraint("Horizontal", 3))
sketch24.addConstraint(Sketcher.Constraint("DistanceX", 1, 1, 1, 2, Q("0.4 mm")))
sketch24.addConstraint(Sketcher.Constraint("DistanceY", 0, 2, 0, 1, Q("0.3 mm")))
sketch24.addConstraint(Sketcher.Constraint("DistanceY", -1, 1, 0, 2, Q("1.8 mm")))
sketch24.addConstraint(Sketcher.Constraint("DistanceX", -1, 1, 0, 2, Q("2.61 mm")))
pad23 = body23.newObject("PartDesign::Pad", "Pad022")
pad23.Profile = sketch24
pad23.Type = "TwoLengths"
pad23.Length = 0.02
pad23.Length2 = 0.2
body24 = doc.addObject("PartDesign::Body", "Body023")

# Sketch on XZ plane
sketch25 = body24.newObject("Sketcher::SketchObject", "Sketch024")
sketch25.AttachmentSupport = (doc.getObject("XZ_Plane023"), [""])
sketch25.MapMode = "FlatFace"
add_polygon(sketch25, [(-2.1, -2.61), (-2.1, -3.01), (-1.8, -3.01), (-1.8, -2.61)])  # lines 0-3
sketch25.addConstraint(Sketcher.Constraint("Vertical", 0))
sketch25.addConstraint(Sketcher.Constraint("Horizontal", 1))
sketch25.addConstraint(Sketcher.Constraint("Vertical", 2))
sketch25.addConstraint(Sketcher.Constraint("Horizontal", 3))
sketch25.addConstraint(Sketcher.Constraint("DistanceX", 1, 1, 1, 2, Q("0.3 mm")))
sketch25.addConstraint(Sketcher.Constraint("DistanceY", 0, 2, 0, 1, Q("0.4 mm")))
sketch25.addConstraint(Sketcher.Constraint("DistanceX", 0, 2, -1, 1, Q("2.1 mm")))
sketch25.addConstraint(Sketcher.Constraint("DistanceY", 0, 2, -1, 1, Q("3.01 mm")))
pad24 = body24.newObject("PartDesign::Pad", "Pad023")
pad24.Profile = sketch25
pad24.Type = "TwoLengths"
pad24.Length = 0.02
pad24.Length2 = 0.2
body25 = doc.addObject("PartDesign::Body", "Body024")

# Sketch on XZ plane
sketch26 = body25.newObject("Sketcher::SketchObject", "Sketch025")
sketch26.AttachmentSupport = (doc.getObject("XZ_Plane024"), [""])
sketch26.MapMode = "FlatFace"
add_polygon(sketch26, [(-1.45, -2.61), (-1.45, -3.01), (-1.15, -3.01), (-1.15, -2.61)])  # lines 0-3
sketch26.addConstraint(Sketcher.Constraint("Vertical", 0))
sketch26.addConstraint(Sketcher.Constraint("Horizontal", 1))
sketch26.addConstraint(Sketcher.Constraint("Vertical", 2))
sketch26.addConstraint(Sketcher.Constraint("Horizontal", 3))
sketch26.addConstraint(Sketcher.Constraint("DistanceX", 1, 1, 1, 2, Q("0.3 mm")))
sketch26.addConstraint(Sketcher.Constraint("DistanceY", 0, 2, 0, 1, Q("0.4 mm")))
sketch26.addConstraint(Sketcher.Constraint("DistanceX", 0, 2, -1, 1, Q("1.45 mm")))
sketch26.addConstraint(Sketcher.Constraint("DistanceY", 0, 2, -1, 1, Q("3.01 mm")))
pad25 = body25.newObject("PartDesign::Pad", "Pad024")
pad25.Profile = sketch26
pad25.Type = "TwoLengths"
pad25.Length = 0.02
pad25.Length2 = 0.2
body26 = doc.addObject("PartDesign::Body", "Body025")

# Sketch on XZ plane
sketch27 = body26.newObject("Sketcher::SketchObject", "Sketch026")
sketch27.AttachmentSupport = (doc.getObject("XZ_Plane025"), [""])
sketch27.MapMode = "FlatFace"
add_polygon(sketch27, [(-0.8, -2.61), (-0.8, -3.01), (-0.5, -3.01), (-0.5, -2.61)])  # lines 0-3
sketch27.addConstraint(Sketcher.Constraint("Vertical", 0))
sketch27.addConstraint(Sketcher.Constraint("Horizontal", 1))
sketch27.addConstraint(Sketcher.Constraint("Vertical", 2))
sketch27.addConstraint(Sketcher.Constraint("Horizontal", 3))
sketch27.addConstraint(Sketcher.Constraint("DistanceX", 1, 1, 1, 2, Q("0.3 mm")))
sketch27.addConstraint(Sketcher.Constraint("DistanceY", 0, 2, 0, 1, Q("0.4 mm")))
sketch27.addConstraint(Sketcher.Constraint("DistanceX", 0, 2, -1, 1, Q("0.8 mm")))
sketch27.addConstraint(Sketcher.Constraint("DistanceY", 0, 2, -1, 1, Q("3.01 mm")))
pad26 = body26.newObject("PartDesign::Pad", "Pad025")
pad26.Profile = sketch27
pad26.Type = "TwoLengths"
pad26.Length = 0.02
pad26.Length2 = 0.2
body27 = doc.addObject("PartDesign::Body", "Body026")

# Sketch on XZ plane
sketch28 = body27.newObject("Sketcher::SketchObject", "Sketch027")
sketch28.AttachmentSupport = (doc.getObject("XZ_Plane026"), [""])
sketch28.MapMode = "FlatFace"
add_polygon(sketch28, [(-0.15, -2.61), (-0.15, -3.01), (0.15, -3.01), (0.15, -2.61)])  # lines 0-3
sketch28.addConstraint(Sketcher.Constraint("Vertical", 0))
sketch28.addConstraint(Sketcher.Constraint("Horizontal", 1))
sketch28.addConstraint(Sketcher.Constraint("Vertical", 2))
sketch28.addConstraint(Sketcher.Constraint("Horizontal", 3))
sketch28.addConstraint(Sketcher.Constraint("DistanceX", 1, 1, 1, 2, Q("0.3 mm")))
sketch28.addConstraint(Sketcher.Constraint("DistanceY", 0, 2, 0, 1, Q("0.4 mm")))
sketch28.addConstraint(Sketcher.Constraint("DistanceX", 0, 2, -1, 1, Q("0.15 mm")))
sketch28.addConstraint(Sketcher.Constraint("DistanceY", 0, 2, -1, 1, Q("3.01 mm")))
pad27 = body27.newObject("PartDesign::Pad", "Pad026")
pad27.Profile = sketch28
pad27.Type = "TwoLengths"
pad27.Length = 0.02
pad27.Length2 = 0.2
body28 = doc.addObject("PartDesign::Body", "Body027")

# Sketch on XZ plane
sketch29 = body28.newObject("Sketcher::SketchObject", "Sketch028")
sketch29.AttachmentSupport = (doc.getObject("XZ_Plane027"), [""])
sketch29.MapMode = "FlatFace"
add_polygon(sketch29, [(0.5, -2.61), (0.5, -3.01), (0.8, -3.01), (0.8, -2.61)])  # lines 0-3
sketch29.addConstraint(Sketcher.Constraint("Vertical", 0))
sketch29.addConstraint(Sketcher.Constraint("Horizontal", 1))
sketch29.addConstraint(Sketcher.Constraint("Vertical", 2))
sketch29.addConstraint(Sketcher.Constraint("Horizontal", 3))
sketch29.addConstraint(Sketcher.Constraint("DistanceX", 1, 1, 1, 2, Q("0.3 mm")))
sketch29.addConstraint(Sketcher.Constraint("DistanceY", 0, 2, 0, 1, Q("0.4 mm")))
sketch29.addConstraint(Sketcher.Constraint("DistanceX", -1, 1, 0, 2, Q("0.5 mm")))
sketch29.addConstraint(Sketcher.Constraint("DistanceY", 0, 2, -1, 1, Q("3.01 mm")))
pad28 = body28.newObject("PartDesign::Pad", "Pad027")
pad28.Profile = sketch29
pad28.Type = "TwoLengths"
pad28.Length = 0.02
pad28.Length2 = 0.2
body29 = doc.addObject("PartDesign::Body", "Body028")

# Sketch on XZ plane
sketch30 = body29.newObject("Sketcher::SketchObject", "Sketch029")
sketch30.AttachmentSupport = (doc.getObject("XZ_Plane028"), [""])
sketch30.MapMode = "FlatFace"
add_polygon(sketch30, [(1.15, -2.61), (1.15, -3.01), (1.45, -3.01), (1.45, -2.61)])  # lines 0-3
sketch30.addConstraint(Sketcher.Constraint("Vertical", 0))
sketch30.addConstraint(Sketcher.Constraint("Horizontal", 1))
sketch30.addConstraint(Sketcher.Constraint("Vertical", 2))
sketch30.addConstraint(Sketcher.Constraint("Horizontal", 3))
sketch30.addConstraint(Sketcher.Constraint("DistanceX", 1, 1, 1, 2, Q("0.3 mm")))
sketch30.addConstraint(Sketcher.Constraint("DistanceY", 0, 2, 0, 1, Q("0.4 mm")))
sketch30.addConstraint(Sketcher.Constraint("DistanceX", -1, 1, 0, 2, Q("1.15 mm")))
sketch30.addConstraint(Sketcher.Constraint("DistanceY", 0, 2, -1, 1, Q("3.01 mm")))
pad29 = body29.newObject("PartDesign::Pad", "Pad028")
pad29.Profile = sketch30
pad29.Type = "TwoLengths"
pad29.Length = 0.02
pad29.Length2 = 0.2
body30 = doc.addObject("PartDesign::Body", "Body029")

# Sketch on XZ plane
sketch31 = body30.newObject("Sketcher::SketchObject", "Sketch030")
sketch31.AttachmentSupport = (doc.getObject("XZ_Plane029"), [""])
sketch31.MapMode = "FlatFace"
add_polygon(sketch31, [(1.8, -2.61), (1.8, -3.01), (2.1, -3.01), (2.1, -2.61)])  # lines 0-3
sketch31.addConstraint(Sketcher.Constraint("Vertical", 0))
sketch31.addConstraint(Sketcher.Constraint("Horizontal", 1))
sketch31.addConstraint(Sketcher.Constraint("Vertical", 2))
sketch31.addConstraint(Sketcher.Constraint("Horizontal", 3))
sketch31.addConstraint(Sketcher.Constraint("DistanceX", 1, 1, 1, 2, Q("0.3 mm")))
sketch31.addConstraint(Sketcher.Constraint("DistanceY", 0, 2, 0, 1, Q("0.4 mm")))
sketch31.addConstraint(Sketcher.Constraint("DistanceX", -1, 1, 0, 2, Q("1.8 mm")))
sketch31.addConstraint(Sketcher.Constraint("DistanceY", 0, 2, -1, 1, Q("3.01 mm")))
pad30 = body30.newObject("PartDesign::Pad", "Pad029")
pad30.Profile = sketch31
pad30.Type = "TwoLengths"
pad30.Length = 0.02
pad30.Length2 = 0.2

doc.recompute()
